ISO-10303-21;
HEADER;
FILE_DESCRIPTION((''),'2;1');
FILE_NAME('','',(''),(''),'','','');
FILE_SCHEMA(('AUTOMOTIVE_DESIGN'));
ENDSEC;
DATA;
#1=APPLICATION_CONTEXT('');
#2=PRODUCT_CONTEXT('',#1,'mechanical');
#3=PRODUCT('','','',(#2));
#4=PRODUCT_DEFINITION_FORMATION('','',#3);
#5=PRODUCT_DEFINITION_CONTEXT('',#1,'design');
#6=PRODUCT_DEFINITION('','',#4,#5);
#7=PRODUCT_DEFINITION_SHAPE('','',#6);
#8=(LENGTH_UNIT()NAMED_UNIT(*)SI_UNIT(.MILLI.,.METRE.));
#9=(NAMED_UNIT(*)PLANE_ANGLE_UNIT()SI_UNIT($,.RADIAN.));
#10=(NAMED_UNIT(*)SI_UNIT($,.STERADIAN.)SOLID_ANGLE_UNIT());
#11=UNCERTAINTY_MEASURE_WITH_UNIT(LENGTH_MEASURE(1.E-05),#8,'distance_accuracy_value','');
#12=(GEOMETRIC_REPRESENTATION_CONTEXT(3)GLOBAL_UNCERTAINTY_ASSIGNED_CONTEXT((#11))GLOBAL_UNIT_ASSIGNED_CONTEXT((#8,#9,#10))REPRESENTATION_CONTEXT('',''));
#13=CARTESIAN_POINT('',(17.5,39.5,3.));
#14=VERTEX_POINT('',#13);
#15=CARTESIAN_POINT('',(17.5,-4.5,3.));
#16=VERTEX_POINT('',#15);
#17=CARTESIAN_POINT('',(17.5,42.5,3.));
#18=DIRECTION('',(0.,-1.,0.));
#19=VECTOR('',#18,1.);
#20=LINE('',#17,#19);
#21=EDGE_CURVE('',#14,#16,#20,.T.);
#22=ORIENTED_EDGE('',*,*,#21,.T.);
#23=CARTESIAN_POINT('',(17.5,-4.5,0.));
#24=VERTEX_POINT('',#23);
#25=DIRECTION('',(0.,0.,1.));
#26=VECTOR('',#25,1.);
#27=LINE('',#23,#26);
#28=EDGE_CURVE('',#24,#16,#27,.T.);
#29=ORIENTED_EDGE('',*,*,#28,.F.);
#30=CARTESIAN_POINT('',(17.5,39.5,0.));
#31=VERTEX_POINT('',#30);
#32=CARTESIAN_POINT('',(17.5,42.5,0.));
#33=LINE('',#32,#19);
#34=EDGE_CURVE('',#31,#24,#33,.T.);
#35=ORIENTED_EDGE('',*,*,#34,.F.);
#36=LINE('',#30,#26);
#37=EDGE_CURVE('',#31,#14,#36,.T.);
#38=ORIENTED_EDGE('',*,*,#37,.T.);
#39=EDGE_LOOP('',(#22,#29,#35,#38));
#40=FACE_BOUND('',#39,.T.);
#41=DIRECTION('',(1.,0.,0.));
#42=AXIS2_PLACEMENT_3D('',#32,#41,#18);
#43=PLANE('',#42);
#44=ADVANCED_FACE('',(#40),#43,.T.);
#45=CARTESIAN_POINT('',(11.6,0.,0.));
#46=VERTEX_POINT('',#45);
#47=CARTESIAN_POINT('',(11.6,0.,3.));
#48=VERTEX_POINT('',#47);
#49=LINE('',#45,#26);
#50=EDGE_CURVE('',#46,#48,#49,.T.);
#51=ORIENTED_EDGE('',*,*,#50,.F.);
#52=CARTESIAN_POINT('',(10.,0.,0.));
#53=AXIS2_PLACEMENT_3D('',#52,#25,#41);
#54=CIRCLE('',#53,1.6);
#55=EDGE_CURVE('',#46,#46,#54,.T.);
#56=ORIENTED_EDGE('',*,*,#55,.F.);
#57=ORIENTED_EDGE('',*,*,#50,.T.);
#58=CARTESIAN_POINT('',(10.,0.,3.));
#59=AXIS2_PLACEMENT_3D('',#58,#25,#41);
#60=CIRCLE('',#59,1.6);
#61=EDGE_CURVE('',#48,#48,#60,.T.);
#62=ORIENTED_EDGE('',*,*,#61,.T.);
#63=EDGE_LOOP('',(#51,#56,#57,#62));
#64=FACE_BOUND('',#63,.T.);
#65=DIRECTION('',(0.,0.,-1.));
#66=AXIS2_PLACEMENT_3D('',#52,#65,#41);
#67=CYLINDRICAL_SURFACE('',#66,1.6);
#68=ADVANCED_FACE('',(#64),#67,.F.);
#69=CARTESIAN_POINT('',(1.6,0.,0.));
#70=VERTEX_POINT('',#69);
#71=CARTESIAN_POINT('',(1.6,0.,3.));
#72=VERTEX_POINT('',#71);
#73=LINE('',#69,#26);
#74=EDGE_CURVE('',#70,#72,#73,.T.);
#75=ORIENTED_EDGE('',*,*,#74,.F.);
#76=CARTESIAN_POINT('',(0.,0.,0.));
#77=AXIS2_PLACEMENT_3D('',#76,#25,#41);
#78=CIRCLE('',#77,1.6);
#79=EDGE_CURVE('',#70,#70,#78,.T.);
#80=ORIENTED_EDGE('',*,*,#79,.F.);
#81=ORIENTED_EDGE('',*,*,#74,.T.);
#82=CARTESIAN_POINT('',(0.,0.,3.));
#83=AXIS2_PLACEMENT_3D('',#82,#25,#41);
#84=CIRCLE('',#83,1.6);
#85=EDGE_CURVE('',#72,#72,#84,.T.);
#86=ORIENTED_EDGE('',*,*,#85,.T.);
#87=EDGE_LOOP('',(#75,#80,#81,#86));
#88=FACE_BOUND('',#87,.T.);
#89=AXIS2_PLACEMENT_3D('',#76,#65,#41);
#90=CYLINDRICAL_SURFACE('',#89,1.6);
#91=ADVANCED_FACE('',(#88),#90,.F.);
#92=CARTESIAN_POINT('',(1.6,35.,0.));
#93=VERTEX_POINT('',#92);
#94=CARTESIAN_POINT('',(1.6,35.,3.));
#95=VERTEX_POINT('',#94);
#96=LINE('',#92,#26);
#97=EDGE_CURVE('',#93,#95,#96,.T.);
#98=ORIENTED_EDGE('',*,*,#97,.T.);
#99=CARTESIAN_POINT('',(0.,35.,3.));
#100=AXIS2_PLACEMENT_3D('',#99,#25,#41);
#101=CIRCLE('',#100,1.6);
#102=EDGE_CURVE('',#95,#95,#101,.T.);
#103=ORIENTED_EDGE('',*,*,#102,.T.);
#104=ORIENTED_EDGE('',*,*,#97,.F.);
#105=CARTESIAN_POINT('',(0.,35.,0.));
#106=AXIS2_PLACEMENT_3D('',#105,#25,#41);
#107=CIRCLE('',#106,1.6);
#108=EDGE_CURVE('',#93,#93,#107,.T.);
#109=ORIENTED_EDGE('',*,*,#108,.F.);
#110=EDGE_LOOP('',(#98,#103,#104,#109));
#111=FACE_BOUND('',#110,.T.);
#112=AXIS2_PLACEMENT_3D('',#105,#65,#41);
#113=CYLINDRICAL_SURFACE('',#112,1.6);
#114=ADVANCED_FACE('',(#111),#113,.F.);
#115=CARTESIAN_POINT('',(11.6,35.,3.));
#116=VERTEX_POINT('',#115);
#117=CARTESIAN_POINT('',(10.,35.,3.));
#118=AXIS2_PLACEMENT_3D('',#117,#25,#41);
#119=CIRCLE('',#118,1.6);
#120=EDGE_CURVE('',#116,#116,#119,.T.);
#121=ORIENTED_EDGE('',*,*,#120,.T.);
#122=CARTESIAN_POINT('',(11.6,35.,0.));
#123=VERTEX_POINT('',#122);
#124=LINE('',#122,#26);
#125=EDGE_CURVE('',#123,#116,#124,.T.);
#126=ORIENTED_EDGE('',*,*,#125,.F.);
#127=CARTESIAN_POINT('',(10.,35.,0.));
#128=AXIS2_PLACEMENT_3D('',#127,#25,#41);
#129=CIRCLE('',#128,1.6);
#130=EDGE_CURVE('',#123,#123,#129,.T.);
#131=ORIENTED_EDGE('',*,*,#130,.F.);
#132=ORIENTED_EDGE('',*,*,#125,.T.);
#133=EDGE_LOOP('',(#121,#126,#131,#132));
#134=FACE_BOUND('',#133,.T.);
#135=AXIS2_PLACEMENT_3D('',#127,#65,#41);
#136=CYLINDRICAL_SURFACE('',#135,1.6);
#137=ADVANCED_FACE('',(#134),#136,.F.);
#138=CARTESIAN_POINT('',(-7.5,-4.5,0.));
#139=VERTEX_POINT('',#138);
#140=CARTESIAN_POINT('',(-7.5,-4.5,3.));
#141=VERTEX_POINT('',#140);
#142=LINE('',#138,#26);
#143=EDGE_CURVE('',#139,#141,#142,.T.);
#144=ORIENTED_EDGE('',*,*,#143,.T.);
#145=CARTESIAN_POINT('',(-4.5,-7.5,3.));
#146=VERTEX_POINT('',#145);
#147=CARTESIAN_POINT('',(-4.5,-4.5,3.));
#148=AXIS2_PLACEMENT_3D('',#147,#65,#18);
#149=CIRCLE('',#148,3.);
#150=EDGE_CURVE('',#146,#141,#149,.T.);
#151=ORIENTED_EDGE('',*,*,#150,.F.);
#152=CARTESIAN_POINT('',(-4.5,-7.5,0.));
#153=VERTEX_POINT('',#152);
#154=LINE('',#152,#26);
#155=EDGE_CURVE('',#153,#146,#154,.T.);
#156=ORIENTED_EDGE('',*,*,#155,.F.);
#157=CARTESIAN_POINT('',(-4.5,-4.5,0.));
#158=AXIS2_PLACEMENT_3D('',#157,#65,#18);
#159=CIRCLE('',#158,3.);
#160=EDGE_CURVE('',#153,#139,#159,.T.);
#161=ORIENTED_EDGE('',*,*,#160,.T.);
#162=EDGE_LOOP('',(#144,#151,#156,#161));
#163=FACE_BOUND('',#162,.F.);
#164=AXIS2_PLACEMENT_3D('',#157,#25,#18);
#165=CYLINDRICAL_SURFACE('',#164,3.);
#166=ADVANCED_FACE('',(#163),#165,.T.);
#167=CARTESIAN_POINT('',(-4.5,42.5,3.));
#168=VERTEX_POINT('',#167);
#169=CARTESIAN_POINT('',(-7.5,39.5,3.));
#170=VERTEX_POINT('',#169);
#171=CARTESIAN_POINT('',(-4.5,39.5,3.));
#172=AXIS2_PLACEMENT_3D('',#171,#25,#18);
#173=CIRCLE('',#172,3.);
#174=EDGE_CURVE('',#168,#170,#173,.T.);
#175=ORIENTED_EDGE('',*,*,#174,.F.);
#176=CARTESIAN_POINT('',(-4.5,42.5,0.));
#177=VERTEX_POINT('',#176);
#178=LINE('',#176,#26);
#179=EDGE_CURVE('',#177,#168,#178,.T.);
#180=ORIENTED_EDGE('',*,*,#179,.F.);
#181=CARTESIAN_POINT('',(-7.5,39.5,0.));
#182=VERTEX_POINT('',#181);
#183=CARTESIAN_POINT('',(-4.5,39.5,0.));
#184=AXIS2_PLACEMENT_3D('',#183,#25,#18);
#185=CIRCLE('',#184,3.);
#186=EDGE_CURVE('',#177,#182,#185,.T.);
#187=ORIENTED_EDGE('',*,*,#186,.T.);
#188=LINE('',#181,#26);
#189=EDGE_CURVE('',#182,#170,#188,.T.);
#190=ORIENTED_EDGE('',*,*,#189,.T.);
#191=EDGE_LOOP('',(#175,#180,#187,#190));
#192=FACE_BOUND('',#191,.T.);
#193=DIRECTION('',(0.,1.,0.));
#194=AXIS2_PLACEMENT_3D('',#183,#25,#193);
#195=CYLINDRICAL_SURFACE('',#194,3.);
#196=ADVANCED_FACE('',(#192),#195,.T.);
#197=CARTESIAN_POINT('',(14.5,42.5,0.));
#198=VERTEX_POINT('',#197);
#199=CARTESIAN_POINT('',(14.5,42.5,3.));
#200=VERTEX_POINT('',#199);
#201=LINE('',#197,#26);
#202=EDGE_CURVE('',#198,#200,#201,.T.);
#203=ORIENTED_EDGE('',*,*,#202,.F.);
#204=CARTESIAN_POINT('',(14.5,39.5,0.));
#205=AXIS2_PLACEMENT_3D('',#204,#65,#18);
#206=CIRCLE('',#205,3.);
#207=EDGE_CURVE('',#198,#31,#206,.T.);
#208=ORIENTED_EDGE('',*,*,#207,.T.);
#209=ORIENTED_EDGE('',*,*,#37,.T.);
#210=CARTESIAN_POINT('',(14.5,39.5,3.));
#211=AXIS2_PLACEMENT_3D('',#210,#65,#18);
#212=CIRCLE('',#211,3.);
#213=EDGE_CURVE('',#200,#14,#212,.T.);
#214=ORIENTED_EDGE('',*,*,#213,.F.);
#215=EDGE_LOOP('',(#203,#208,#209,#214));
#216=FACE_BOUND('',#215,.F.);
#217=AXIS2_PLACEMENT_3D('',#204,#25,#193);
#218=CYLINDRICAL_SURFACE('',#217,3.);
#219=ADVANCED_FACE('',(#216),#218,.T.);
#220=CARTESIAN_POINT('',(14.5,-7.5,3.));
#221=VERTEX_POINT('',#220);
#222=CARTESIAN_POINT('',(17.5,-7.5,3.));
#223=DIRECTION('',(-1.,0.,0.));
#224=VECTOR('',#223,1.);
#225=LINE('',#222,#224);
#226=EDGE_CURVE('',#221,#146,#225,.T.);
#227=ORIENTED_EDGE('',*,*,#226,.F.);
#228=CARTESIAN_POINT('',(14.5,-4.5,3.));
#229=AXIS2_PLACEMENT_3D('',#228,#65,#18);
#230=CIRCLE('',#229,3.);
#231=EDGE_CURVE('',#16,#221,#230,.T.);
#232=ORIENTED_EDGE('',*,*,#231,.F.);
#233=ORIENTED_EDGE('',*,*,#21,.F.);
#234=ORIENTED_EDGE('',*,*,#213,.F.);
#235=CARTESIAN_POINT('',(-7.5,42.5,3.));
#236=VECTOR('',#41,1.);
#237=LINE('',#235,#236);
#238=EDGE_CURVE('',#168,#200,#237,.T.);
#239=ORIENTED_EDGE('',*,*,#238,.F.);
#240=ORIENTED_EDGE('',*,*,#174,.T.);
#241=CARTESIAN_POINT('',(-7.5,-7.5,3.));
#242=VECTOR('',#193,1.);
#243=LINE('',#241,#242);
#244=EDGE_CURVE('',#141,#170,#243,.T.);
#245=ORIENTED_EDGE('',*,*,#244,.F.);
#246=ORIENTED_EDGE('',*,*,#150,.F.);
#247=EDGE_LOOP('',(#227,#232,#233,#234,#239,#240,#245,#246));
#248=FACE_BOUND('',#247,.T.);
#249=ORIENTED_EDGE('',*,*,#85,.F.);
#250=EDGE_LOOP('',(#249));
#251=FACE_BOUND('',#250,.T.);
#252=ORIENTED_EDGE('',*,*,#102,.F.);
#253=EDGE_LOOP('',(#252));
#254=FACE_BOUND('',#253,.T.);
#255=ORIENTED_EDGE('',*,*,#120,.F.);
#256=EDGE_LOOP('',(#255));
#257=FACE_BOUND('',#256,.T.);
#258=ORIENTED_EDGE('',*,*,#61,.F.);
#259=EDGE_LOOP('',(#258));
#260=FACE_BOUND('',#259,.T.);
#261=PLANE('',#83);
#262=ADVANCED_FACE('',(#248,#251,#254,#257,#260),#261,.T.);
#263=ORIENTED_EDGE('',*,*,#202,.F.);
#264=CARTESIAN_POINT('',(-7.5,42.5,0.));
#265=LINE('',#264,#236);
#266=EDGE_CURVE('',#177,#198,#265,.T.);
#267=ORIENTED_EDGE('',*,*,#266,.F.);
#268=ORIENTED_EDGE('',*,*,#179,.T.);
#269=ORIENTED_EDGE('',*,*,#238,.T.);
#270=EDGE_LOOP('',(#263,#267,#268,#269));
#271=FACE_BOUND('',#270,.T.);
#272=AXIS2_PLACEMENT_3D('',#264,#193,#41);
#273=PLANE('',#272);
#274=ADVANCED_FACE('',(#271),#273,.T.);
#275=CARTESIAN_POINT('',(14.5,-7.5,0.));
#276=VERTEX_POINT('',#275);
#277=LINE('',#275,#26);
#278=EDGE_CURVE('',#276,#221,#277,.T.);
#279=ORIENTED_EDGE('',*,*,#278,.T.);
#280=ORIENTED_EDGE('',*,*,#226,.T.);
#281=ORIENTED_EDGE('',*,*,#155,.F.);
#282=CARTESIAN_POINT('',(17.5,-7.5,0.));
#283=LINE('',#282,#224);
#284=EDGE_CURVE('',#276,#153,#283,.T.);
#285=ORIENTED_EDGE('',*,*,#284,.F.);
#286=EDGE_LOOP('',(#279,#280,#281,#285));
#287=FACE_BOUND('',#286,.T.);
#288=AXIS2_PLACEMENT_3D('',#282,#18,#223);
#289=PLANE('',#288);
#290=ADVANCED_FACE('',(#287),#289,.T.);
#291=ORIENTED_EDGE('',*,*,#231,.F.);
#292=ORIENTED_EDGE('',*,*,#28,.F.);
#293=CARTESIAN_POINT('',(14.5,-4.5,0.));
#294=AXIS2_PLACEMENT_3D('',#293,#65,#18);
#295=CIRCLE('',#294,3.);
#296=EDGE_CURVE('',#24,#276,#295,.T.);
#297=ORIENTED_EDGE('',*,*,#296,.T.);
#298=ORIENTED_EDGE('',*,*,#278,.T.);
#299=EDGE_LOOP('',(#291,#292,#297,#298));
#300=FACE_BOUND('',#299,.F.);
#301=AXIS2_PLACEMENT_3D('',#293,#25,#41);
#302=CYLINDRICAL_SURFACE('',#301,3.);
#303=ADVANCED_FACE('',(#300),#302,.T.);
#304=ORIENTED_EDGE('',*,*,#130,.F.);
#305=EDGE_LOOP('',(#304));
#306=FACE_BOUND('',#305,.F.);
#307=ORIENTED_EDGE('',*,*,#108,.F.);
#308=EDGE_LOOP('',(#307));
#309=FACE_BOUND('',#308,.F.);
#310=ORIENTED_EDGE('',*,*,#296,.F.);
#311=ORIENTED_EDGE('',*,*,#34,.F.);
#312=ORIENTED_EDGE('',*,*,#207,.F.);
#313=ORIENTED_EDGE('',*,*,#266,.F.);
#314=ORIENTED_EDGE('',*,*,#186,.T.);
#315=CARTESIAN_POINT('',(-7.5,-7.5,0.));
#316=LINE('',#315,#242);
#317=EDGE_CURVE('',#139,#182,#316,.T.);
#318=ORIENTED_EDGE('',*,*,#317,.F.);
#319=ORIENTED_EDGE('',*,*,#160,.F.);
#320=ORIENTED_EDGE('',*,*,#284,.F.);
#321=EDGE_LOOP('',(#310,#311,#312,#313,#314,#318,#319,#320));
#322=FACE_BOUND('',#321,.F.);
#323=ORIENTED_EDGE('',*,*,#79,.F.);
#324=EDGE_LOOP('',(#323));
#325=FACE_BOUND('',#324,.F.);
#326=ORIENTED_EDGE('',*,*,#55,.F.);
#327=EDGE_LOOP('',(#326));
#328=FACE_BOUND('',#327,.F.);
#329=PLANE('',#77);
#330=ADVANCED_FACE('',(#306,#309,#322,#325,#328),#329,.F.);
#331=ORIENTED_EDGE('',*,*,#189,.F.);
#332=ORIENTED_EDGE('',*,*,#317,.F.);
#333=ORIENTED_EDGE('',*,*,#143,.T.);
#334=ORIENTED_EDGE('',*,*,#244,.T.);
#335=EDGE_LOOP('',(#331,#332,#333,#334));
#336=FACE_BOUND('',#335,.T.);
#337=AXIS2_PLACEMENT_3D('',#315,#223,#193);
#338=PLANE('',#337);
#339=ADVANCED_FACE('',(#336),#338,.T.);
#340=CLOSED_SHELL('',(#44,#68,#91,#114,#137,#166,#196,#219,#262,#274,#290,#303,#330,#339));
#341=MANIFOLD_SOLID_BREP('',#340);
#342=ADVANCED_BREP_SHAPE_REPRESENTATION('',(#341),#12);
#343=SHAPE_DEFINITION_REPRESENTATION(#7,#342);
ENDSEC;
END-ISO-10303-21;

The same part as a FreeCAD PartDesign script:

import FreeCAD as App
import Part
import Sketcher
Q = App.Units.Quantity


def edges_at(feature, points):
    """Names of the edges that pass closest to the given points."""
    edges = feature.Shape.Edges
    near = lambda p: min(range(len(edges)), key=lambda i: edges[i].distToShape(Part.Vertex(*p))[0])
    return sorted({f"Edge{near(p) + 1}" for p in points})


def add_polygon(sketch, points):
    """Adds a closed chain of lines whose ends are joined by coincident constraints."""
    first, n = sketch.GeometryCount, len(points)
    for a, b in zip(points, points[1:] + points[:1]):
        sketch.addGeometry(Part.LineSegment(App.Vector(*a, 0), App.Vector(*b, 0)), False)
    for i in range(n):
        sketch.addConstraint(Sketcher.Constraint("Coincident", first + i, 2, first + (i + 1) % n, 1))

doc = App.newDocument("Part")
body = doc.addObject("PartDesign::Body", "Body")

sketch1 = body.newObject("Sketcher::SketchObject", "Sketch")
sketch1.AttachmentSupport = (doc.getObject("XY_Plane"), [""])
sketch1.MapMode = "FlatFace"
add_polygon(sketch1, [(17.5, 42.5), (-7.5, 42.5), (-7.5, -7.5), (17.5, -7.5)])
sketch1.addGeometry(Part.Circle(App.Vector(0, 0, 0), App.Vector(0, 0, 1), 1.6), False)
sketch1.addGeometry(Part.Circle(App.Vector(10, 0, 0), App.Vector(0, 0, 1), 1.6), False)
sketch1.addGeometry(Part.Circle(App.Vector(0, 35, 0), App.Vector(0, 0, 1), 1.6), False)
sketch1.addGeometry(Part.Circle(App.Vector(10, 35, 0), App.Vector(0, 0, 1), 1.6), False)
sketch1.addConstraint([
    Sketcher.Constraint("Horizontal", 0),
    Sketcher.Constraint("Vertical", 1),
    Sketcher.Constraint("Horizontal", 2),
    Sketcher.Constraint("Vertical", 3),
    Sketcher.Constraint("Coincident", 4, 3, -1, 1),
    Sketcher.Constraint("Equal", 4, 5),
    Sketcher.Constraint("Equal", 5, 6),
    Sketcher.Constraint("Equal", 6, 7),
    Sketcher.Constraint("PointOnObject", 5, 3, -1),
    Sketcher.Constraint("PointOnObject", 6, 3, -2),
    Sketcher.Constraint("Horizontal", 6, 3, 7, 3),
    Sketcher.Constraint("Vertical", 5, 3, 7, 3),
    Sketcher.Constraint("Diameter", 4, Q("3.2 mm")),
    Sketcher.Constraint("DistanceX", -1, 1, 5, 3, Q("10 mm")),
    Sketcher.Constraint("DistanceY", -1, 1, 6, 3, Q("35 mm")),
    Sketcher.Constraint("DistanceX", 0, 2, -1, 1, Q("7.5 mm")),
    Sketcher.Constraint("DistanceY", 1, 2, -1, 1, Q("7.5 mm")),
    Sketcher.Constraint("DistanceY", 6, 3, 0, 2, Q("7.5 mm")),
    Sketcher.Constraint("DistanceX", 5, 3, 2, 2, Q("7.5 mm")),
])
pad1 = body.newObject("PartDesign::Pad", "Pad")
pad1.Profile = sketch1
pad1.Length = 3
doc.recompute()

fillet = body.newObject("PartDesign::Fillet", "Fillet")
fillet.Base = (pad1, edges_at(pad1, [
    (-7.5, 42.5, 1.5),
    (17.5, 42.5, 1.5),
    (17.5, -7.5, 1.5),
    (-7.5, -7.5, 1.5),
]))
fillet.Radius = 3

doc.recompute()
